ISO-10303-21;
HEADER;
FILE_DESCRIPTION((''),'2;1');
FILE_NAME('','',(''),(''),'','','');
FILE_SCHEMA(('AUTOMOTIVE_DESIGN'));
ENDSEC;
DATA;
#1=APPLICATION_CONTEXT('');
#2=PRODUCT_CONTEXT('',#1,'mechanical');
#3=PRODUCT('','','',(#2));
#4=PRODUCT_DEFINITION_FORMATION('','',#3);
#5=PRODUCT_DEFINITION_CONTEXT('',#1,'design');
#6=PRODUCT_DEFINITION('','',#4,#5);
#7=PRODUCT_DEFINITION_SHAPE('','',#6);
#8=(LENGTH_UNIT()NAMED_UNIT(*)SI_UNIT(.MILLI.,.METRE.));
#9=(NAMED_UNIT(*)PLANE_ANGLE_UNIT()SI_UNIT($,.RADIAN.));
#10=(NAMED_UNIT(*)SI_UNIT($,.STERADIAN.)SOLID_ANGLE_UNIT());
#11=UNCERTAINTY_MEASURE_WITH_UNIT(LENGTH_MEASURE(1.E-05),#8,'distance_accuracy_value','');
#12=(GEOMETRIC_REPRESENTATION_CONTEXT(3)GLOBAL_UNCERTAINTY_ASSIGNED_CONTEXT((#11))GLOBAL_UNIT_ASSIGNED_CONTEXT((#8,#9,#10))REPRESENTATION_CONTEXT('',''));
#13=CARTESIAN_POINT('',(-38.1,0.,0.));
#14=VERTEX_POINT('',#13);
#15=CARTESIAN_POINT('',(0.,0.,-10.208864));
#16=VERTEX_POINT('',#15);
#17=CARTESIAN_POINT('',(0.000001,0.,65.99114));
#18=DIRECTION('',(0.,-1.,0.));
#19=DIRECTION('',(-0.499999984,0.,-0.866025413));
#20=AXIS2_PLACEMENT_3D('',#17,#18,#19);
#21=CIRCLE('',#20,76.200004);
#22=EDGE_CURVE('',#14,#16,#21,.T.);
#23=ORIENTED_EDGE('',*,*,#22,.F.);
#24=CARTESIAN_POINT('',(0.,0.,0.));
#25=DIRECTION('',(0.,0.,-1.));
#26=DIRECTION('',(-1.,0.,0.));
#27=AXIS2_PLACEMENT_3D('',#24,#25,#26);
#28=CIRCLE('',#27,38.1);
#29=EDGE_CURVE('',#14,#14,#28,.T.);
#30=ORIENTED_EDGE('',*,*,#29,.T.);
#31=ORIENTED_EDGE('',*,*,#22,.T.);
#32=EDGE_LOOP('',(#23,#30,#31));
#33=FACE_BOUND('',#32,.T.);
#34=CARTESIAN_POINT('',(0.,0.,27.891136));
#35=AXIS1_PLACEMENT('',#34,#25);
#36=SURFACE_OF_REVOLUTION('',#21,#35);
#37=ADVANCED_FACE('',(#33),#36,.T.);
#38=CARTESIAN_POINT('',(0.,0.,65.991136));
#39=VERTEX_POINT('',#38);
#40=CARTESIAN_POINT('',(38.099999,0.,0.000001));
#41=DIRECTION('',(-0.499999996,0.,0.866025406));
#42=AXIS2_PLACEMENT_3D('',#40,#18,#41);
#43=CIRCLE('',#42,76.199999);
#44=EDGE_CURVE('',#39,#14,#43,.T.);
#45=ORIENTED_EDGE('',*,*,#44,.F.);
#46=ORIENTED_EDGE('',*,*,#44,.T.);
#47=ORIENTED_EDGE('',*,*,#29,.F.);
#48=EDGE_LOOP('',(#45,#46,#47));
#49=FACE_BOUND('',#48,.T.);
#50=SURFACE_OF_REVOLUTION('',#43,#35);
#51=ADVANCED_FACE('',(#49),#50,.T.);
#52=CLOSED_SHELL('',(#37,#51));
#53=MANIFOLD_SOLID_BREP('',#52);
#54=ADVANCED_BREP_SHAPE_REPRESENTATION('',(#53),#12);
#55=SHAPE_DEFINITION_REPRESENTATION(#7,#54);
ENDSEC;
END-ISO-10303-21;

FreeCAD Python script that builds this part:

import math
import FreeCAD as App
import Part
import Sketcher

V = App.Vector
Q = App.Units.Quantity

doc = App.newDocument("Part")
body = doc.addObject("PartDesign::Body", "Body")

sketch1 = body.newObject("Sketcher::SketchObject", "Sketch")
sketch1.AttachmentSupport = (doc.getObject("XZ_Plane"), [""])
sketch1.MapMode = "FlatFace"
sketch1.addGeometry(Part.ArcOfCircle(Part.Circle(V(38, 0, 0), V(0, 0, 1), 76), math.radians(120), math.radians(180)), False)
sketch1.addGeometry(Part.ArcOfCircle(Part.Circle(V(0, 66, 0), V(0, 0, 1), 76), math.radians(-120), math.radians(-90)), False)
sketch1.addGeometry(Part.LineSegment(V(0, -10, 0), V(0, 66, 0)), False)
sketch1.addConstraint(Sketcher.Constraint("Coincident", 0, 2, 1, 1))
sketch1.addConstraint(Sketcher.Constraint("Coincident", 1, 2, 2, 1))
sketch1.addConstraint(Sketcher.Constraint("Coincident", 2, 2, 0, 1))
sketch1.addConstraint(Sketcher.Constraint("Vertical", 2))
sketch1.addConstraint(Sketcher.Constraint("Coincident", 2, 2, 1, 3))
sketch1.addConstraint(Sketcher.Constraint("PointOnObject", 0, 3, -1))
sketch1.addConstraint(Sketcher.Constraint("PointOnObject", 1, 3, -2))
sketch1.addConstraint(Sketcher.Constraint("PointOnObject", 0, 2, -1))
sketch1.addConstraint(Sketcher.Constraint("Radius", 0, Q("3 in")))
sketch1.addConstraint(Sketcher.Constraint("Radius", 1, Q("3.0000001 in")))
revolution = body.newObject("PartDesign::Revolution", "Revolution")
revolution.Profile = sketch1
revolution.ReferenceAxis = (sketch1, ["V_Axis"])
revolution.Angle = 360

doc.recompute()
